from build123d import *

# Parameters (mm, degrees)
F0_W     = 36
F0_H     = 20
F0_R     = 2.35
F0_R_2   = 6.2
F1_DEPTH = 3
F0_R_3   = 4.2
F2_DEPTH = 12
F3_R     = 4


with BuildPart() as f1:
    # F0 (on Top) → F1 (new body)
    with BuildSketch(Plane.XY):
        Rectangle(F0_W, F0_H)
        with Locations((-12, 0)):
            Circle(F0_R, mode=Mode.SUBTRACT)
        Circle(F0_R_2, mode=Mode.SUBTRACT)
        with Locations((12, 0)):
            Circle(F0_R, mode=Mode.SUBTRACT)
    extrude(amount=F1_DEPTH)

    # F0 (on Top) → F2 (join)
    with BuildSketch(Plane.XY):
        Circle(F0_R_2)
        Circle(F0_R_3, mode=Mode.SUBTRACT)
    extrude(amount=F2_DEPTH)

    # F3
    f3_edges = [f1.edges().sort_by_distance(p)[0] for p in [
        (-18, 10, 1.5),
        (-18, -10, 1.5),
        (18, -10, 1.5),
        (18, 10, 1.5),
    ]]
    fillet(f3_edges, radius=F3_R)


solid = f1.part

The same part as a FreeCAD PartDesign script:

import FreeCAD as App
import Part
import Sketcher
from FreeCAD import Vector
Q = App.Units.Quantity


def edges_at(feature, points):
    """Names of the edges that pass closest to the given points."""
    edges = feature.Shape.Edges
    near = lambda p: min(range(len(edges)), key=lambda i: edges[i].distToShape(Part.Vertex(*p))[0])
    return sorted({f"Edge{near(p) + 1}" for p in points})

doc = App.newDocument("Part")
body = doc.addObject("PartDesign::Body", "Body")

sketch1 = body.newObject("Sketcher::SketchObject", "Sketch")
sketch1.AttachmentSupport = (doc.getObject("XY_Plane"), [""])
sketch1.MapMode = "FlatFace"
sketch1.addGeometry([
    Part.LineSegment(Vector(-18, 10, 0), Vector(-18, -10, 0)),
    Part.LineSegment(Vector(-18, -10, 0), Vector(18, -10, 0)),
    Part.LineSegment(Vector(18, -10, 0), Vector(18, 10, 0)),
    Part.LineSegment(Vector(18, 10, 0), Vector(-18, 10, 0)),
    Part.Circle(Vector(-12, 0, 0), Vector(0, 0, 1), 2.4),
    Part.Circle(Vector(0, 0, 0), Vector(0, 0, 1), 6.2),
    Part.Circle(Vector(12, 0, 0), Vector(0, 0, 1), 2.4),
], False)
sketch1.addConstraint([
    Sketcher.Constraint("Coincident", 0, 2, 1, 1),
    Sketcher.Constraint("Coincident", 1, 2, 2, 1),
    Sketcher.Constraint("Coincident", 2, 2, 3, 1),
    Sketcher.Constraint("Coincident", 3, 2, 0, 1),
    Sketcher.Constraint("Vertical", 0),
    Sketcher.Constraint("Horizontal", 1),
    Sketcher.Constraint("Vertical", 2),
    Sketcher.Constraint("Horizontal", 3),
    Sketcher.Constraint("Coincident", 5, 3, -1, 1),
    Sketcher.Constraint("Equal", 4, 6),
    Sketcher.Constraint("Symmetric", 4, 3, 6, 3, -1, 1),
    Sketcher.Constraint("Symmetric", 0, 2, 2, 2, -1, 1),
    Sketcher.Constraint("PointOnObject", 4, 3, -1),
    Sketcher.Constraint("Diameter", 4, Q("4.7 mm")),
    Sketcher.Constraint("Diameter", 5, Q("12.4 mm")),
    Sketcher.Constraint("DistanceX", 1, 1, 1, 2, Q("36 mm")),
    Sketcher.Constraint("DistanceY", 0, 2, 0, 1, Q("20 mm")),
    Sketcher.Constraint("DistanceX", 4, 3, -1, 1, Q("12 mm")),
])
pad1 = body.newObject("PartDesign::Pad", "Pad")
pad1.Profile = sketch1
pad1.Length = 3

sketch2 = body.newObject("Sketcher::SketchObject", "Sketch001")
sketch2.AttachmentSupport = (doc.getObject("XY_Plane"), [""])
sketch2.MapMode = "FlatFace"
sketch2.addGeometry([
    Part.Circle(Vector(0, 0, 0), Vector(0, 0, 1), 6.2),
    Part.Circle(Vector(0, 0, 0), Vector(0, 0, 1), 4.2),
], False)
sketch2.addConstraint([
    Sketcher.Constraint("Coincident", 0, 3, -1, 1),
    Sketcher.Constraint("Coincident", 1, 3, -1, 1),
    Sketcher.Constraint("Diameter", 0, Q("12.4 mm")),
    Sketcher.Constraint("Diameter", 1, Q("8.4 mm")),
])
pad2 = body.newObject("PartDesign::Pad", "Pad001")
pad2.Profile = sketch2
pad2.Length = 12
doc.recompute()

fillet = body.newObject("PartDesign::Fillet", "Fillet")
fillet.Base = (pad2, edges_at(pad2, [
    (-18, 10, 1.5),
    (-18, -10, 1.5),
    (18, -10, 1.5),
    (18, 10, 1.5),
]))
fillet.Radius = 4

doc.recompute()
